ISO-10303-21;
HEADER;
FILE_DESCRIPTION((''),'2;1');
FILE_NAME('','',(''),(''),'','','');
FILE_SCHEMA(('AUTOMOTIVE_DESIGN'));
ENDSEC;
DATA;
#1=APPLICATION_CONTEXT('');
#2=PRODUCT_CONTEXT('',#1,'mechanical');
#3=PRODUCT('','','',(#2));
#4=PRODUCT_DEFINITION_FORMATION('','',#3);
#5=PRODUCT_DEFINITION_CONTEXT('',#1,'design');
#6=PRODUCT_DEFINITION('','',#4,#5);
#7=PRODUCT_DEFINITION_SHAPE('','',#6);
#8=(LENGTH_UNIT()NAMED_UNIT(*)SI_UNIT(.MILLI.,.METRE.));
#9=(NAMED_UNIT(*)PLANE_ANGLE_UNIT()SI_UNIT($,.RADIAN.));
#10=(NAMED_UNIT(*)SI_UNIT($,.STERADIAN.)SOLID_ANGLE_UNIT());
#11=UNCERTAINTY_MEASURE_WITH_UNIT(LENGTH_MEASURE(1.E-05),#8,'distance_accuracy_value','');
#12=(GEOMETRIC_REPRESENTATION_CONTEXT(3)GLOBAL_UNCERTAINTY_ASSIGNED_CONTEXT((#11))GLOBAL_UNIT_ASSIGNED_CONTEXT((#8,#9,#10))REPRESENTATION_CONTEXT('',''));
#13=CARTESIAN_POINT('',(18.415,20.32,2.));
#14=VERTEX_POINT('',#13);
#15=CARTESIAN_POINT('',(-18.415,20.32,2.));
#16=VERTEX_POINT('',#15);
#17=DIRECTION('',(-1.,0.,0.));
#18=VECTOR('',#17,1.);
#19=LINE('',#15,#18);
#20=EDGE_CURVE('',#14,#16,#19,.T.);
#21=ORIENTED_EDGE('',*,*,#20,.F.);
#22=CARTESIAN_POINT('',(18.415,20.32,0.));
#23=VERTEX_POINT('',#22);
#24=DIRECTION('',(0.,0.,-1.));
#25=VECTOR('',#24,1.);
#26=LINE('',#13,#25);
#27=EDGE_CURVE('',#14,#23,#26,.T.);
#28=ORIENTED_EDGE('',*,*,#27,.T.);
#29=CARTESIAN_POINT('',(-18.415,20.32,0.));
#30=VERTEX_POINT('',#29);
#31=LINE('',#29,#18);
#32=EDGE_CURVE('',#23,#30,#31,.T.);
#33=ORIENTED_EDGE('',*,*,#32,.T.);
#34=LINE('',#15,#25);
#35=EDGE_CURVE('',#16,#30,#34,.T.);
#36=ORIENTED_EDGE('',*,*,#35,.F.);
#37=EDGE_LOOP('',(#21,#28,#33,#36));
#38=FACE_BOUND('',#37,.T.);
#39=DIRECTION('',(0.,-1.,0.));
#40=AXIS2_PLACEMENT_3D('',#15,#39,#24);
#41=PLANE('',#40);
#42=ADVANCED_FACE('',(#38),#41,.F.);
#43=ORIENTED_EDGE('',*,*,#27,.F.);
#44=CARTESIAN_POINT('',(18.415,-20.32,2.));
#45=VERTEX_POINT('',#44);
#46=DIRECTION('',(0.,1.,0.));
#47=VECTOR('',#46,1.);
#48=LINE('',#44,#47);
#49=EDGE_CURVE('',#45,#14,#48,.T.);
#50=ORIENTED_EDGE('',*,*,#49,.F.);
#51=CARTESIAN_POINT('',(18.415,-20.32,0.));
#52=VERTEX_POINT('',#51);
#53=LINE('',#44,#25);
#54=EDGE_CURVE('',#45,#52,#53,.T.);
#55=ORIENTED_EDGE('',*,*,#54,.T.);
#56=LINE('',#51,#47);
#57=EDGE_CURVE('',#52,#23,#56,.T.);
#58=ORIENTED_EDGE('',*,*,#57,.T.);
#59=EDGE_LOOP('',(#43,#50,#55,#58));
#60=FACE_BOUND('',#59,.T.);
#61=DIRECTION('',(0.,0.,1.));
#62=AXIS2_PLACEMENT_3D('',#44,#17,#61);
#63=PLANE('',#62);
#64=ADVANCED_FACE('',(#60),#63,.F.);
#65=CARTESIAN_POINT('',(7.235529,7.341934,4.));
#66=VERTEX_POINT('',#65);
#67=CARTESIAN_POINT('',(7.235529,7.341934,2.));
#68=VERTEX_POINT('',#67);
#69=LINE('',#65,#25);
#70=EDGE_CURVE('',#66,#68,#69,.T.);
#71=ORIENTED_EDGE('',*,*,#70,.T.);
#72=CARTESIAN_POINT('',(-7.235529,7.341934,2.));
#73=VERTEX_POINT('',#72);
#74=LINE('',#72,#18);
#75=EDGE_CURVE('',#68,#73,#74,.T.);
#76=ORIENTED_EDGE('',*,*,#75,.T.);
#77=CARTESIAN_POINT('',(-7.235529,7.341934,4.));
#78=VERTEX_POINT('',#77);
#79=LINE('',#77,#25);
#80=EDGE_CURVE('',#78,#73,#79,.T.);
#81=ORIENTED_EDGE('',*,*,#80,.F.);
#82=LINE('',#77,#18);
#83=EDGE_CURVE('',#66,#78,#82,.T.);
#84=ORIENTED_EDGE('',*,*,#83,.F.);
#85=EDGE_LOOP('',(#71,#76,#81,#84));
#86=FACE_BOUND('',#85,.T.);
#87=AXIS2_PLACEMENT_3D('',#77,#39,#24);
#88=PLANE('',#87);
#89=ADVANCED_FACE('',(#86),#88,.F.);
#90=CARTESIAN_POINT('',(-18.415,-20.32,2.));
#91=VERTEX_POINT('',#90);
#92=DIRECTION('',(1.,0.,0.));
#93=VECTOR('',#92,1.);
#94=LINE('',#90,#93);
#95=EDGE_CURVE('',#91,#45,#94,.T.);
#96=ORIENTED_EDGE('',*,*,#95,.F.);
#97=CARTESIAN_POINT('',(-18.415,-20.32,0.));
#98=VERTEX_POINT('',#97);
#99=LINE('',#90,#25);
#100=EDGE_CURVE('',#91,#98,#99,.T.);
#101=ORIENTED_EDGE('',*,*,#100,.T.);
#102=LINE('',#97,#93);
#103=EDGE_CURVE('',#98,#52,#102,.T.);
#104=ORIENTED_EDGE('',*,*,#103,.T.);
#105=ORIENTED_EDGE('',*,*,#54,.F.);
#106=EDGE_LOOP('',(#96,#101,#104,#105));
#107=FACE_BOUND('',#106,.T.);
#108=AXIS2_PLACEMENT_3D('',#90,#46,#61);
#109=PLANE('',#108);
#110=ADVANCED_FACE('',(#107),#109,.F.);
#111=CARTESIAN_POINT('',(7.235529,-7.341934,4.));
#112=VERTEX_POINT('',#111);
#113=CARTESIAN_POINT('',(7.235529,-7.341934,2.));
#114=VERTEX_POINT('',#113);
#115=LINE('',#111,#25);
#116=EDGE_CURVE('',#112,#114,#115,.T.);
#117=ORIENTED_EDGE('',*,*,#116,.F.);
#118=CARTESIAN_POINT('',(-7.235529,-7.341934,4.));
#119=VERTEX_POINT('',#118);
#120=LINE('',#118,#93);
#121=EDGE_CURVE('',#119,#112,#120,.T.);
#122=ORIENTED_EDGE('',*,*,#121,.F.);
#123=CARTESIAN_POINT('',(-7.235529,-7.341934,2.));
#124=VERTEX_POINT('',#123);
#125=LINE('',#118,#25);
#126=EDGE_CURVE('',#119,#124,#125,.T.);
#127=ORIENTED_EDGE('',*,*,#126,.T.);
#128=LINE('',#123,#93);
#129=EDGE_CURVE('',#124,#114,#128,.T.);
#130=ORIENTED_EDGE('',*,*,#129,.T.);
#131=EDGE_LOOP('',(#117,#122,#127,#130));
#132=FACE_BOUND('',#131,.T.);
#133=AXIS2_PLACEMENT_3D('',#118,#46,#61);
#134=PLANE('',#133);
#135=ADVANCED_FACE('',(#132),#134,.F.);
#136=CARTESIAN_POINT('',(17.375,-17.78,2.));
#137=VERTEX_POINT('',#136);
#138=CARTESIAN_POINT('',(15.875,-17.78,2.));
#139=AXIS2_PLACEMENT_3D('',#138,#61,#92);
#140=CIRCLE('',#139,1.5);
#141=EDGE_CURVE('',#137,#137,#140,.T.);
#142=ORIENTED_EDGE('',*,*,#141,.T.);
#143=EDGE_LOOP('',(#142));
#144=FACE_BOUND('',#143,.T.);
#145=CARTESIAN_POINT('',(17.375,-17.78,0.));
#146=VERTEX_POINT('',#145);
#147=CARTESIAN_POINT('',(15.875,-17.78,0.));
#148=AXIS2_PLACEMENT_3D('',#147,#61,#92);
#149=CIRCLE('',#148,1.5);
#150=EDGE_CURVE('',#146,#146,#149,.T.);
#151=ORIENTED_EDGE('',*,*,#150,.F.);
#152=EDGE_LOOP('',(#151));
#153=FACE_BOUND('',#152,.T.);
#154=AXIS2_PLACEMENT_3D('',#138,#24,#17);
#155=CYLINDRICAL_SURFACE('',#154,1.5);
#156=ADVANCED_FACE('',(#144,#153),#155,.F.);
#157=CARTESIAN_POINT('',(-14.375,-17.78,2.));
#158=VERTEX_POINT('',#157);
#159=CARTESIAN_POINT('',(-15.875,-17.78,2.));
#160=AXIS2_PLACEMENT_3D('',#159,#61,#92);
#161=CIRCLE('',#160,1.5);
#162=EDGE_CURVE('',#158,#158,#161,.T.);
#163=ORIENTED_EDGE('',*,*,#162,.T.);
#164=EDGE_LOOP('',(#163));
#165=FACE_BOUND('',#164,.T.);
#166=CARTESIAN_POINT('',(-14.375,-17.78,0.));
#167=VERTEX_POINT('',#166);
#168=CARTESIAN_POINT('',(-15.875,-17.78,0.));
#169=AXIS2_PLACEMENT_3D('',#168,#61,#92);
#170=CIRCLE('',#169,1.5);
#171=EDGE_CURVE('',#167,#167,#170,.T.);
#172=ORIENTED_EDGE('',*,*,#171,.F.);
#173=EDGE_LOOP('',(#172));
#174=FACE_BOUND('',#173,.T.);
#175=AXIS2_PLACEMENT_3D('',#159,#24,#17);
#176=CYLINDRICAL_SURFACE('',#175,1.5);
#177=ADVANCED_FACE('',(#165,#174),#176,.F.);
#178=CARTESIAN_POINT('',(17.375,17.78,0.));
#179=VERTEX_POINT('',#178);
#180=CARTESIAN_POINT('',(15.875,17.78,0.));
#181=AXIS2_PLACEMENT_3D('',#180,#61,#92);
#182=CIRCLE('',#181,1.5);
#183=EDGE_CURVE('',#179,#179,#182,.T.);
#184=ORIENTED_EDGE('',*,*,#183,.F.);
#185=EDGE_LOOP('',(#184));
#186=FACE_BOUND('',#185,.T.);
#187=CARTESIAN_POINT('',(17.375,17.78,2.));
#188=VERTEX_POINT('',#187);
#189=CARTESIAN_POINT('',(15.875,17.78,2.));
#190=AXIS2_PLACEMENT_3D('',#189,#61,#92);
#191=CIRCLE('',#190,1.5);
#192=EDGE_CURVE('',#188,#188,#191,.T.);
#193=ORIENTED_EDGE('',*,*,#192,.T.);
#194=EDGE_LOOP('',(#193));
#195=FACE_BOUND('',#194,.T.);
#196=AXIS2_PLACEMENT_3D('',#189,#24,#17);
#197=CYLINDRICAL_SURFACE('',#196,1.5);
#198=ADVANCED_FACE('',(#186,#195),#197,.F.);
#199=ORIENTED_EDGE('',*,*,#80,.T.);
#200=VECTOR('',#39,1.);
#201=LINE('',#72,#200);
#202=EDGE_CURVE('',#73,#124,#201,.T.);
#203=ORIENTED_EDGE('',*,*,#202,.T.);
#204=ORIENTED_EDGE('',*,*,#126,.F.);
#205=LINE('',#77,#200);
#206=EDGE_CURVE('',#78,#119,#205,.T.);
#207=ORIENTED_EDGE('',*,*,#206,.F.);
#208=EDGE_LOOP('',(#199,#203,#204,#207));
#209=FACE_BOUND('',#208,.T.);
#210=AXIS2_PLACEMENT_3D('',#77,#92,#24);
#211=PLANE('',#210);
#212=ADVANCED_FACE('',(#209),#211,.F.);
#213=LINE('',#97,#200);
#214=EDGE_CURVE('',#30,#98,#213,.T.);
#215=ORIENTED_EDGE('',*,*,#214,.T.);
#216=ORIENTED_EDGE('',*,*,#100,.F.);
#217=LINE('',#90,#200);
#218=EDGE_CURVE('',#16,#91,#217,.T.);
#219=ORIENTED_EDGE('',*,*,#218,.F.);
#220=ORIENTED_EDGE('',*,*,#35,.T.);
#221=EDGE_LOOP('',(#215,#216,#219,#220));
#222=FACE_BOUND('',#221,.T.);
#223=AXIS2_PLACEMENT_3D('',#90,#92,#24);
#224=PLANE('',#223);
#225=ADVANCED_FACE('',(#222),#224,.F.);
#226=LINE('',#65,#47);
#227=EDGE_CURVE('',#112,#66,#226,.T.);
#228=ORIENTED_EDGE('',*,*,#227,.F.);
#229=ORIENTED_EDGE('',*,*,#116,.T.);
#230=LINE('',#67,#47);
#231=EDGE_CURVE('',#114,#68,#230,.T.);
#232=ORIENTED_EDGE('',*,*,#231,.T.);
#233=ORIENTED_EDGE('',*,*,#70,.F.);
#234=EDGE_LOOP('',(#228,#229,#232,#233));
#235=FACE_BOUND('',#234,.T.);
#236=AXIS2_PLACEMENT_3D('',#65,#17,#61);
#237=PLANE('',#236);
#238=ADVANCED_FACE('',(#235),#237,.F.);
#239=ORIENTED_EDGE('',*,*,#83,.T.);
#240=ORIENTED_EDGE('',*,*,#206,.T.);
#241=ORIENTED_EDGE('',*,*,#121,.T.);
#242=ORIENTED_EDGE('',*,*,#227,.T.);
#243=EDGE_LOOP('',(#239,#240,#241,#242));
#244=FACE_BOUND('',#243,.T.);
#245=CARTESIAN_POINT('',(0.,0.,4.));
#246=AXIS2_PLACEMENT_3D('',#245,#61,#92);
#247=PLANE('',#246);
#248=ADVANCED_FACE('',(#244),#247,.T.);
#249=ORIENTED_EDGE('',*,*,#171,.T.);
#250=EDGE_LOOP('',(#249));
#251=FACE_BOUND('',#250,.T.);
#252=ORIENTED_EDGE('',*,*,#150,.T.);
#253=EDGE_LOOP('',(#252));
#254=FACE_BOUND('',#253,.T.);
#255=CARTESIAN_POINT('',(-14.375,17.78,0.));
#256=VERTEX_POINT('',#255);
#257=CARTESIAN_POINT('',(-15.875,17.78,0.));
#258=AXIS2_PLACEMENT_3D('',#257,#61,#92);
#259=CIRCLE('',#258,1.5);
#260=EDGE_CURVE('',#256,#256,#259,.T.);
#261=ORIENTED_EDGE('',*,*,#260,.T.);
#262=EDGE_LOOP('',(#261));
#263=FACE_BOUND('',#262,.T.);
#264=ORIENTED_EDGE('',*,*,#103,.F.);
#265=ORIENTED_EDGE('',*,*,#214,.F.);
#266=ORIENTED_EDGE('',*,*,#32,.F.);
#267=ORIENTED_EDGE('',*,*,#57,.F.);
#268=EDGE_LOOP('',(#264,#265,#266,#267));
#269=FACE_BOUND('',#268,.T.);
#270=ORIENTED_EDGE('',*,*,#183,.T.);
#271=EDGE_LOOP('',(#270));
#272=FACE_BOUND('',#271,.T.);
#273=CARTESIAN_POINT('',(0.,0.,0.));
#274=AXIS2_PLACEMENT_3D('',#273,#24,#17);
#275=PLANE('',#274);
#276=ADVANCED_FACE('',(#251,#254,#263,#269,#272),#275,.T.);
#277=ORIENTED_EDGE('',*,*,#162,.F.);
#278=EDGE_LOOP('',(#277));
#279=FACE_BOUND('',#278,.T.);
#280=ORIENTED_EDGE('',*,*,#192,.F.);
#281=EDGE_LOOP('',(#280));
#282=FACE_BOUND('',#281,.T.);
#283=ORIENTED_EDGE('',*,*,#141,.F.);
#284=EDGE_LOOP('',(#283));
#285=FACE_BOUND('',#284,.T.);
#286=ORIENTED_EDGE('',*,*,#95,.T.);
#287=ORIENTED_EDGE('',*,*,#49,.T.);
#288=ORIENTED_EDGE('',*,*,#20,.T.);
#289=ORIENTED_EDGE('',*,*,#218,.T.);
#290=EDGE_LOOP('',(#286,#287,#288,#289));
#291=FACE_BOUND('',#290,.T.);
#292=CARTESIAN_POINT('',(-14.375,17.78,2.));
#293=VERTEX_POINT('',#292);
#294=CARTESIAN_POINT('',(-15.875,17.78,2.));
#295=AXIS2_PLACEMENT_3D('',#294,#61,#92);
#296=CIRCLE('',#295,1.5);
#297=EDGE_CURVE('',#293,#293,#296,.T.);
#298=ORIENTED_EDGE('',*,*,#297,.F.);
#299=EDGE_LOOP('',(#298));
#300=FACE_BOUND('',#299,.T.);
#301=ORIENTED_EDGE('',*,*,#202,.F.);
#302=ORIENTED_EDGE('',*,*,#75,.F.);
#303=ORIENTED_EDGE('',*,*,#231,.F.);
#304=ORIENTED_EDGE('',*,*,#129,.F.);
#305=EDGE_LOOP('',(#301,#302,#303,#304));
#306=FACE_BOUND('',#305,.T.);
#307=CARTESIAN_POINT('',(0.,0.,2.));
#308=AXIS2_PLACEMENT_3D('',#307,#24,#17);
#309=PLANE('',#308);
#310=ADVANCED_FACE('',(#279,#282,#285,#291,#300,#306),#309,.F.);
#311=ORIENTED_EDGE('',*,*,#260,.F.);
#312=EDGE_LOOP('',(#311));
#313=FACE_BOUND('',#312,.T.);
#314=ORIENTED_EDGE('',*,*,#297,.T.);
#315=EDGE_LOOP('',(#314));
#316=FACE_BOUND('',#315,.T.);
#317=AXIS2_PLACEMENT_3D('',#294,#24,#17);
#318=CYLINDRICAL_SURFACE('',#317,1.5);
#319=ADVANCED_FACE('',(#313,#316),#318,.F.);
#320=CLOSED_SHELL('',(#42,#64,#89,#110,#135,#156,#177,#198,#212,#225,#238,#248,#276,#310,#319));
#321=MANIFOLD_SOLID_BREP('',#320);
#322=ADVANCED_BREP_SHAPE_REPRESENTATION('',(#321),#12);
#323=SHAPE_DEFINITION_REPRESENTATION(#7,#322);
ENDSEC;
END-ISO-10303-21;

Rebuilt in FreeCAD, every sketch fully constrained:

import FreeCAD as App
import Part
import Sketcher
from FreeCAD import Vector
Q = App.Units.Quantity

doc = App.newDocument("Part")
params = doc.addObject("Spreadsheet::Sheet", "Params")
for row, (alias, value) in enumerate([
    ("sketch1_diameter", "3 mm"),
    ("sketch1_width", "36.83 mm"),
    ("sketch1_height", "40.64 mm"),
    ("pad1_length", "2 mm"),
    ("pad2_length", "2 mm"),
], start=1):
    params.set(f"A{row}", alias)
    params.set(f"B{row}", "=" + value)
    params.setAlias(f"B{row}", alias)

body = doc.addObject("PartDesign::Body", "Body")

sketch1 = body.newObject("Sketcher::SketchObject", "Sketch")
sketch1.AttachmentSupport = (doc.getObject("XY_Plane"), [""])
sketch1.MapMode = "FlatFace"
sketch1.addGeometry(Part.LineSegment(Vector(-18.4, 20.3, 0), Vector(-18.4, -20.3, 0)), False)
sketch1.addGeometry(Part.LineSegment(Vector(-18.4, -20.3, 0), Vector(18.4, -20.3, 0)), False)
sketch1.addGeometry(Part.LineSegment(Vector(18.4, -20.3, 0), Vector(18.4, 20.3, 0)), False)
sketch1.addGeometry(Part.LineSegment(Vector(18.4, 20.3, 0), Vector(-18.4, 20.3, 0)), False)
sketch1.addGeometry(Part.Circle(Vector(-15.9, -17.8, 0), Vector(0, 0, 1), 1.5), False)
sketch1.addGeometry(Part.Circle(Vector(15.9, -17.8, 0), Vector(0, 0, 1), 1.5), False)
sketch1.addGeometry(Part.Circle(Vector(-15.9, 17.8, 0), Vector(0, 0, 1), 1.5), False)
sketch1.addGeometry(Part.Circle(Vector(15.9, 17.8, 0), Vector(0, 0, 1), 1.5), False)
sketch1.addConstraint(Sketcher.Constraint("Coincident", 0, 2, 1, 1))
sketch1.addConstraint(Sketcher.Constraint("Coincident", 1, 2, 2, 1))
sketch1.addConstraint(Sketcher.Constraint("Coincident", 2, 2, 3, 1))
sketch1.addConstraint(Sketcher.Constraint("Coincident", 3, 2, 0, 1))
sketch1.addConstraint(Sketcher.Constraint("Vertical", 0))
sketch1.addConstraint(Sketcher.Constraint("Horizontal", 1))
sketch1.addConstraint(Sketcher.Constraint("Vertical", 2))
sketch1.addConstraint(Sketcher.Constraint("Horizontal", 3))
sketch1.addConstraint(Sketcher.Constraint("Equal", 4, 5))
sketch1.addConstraint(Sketcher.Constraint("Equal", 5, 6))
sketch1.addConstraint(Sketcher.Constraint("Equal", 6, 7))
sketch1.addConstraint(Sketcher.Constraint("Symmetric", 5, 3, 6, 3, -1, 1))
sketch1.addConstraint(Sketcher.Constraint("Symmetric", 4, 3, 7, 3, -1, 1))
sketch1.addConstraint(Sketcher.Constraint("Symmetric", 0, 2, 2, 2, -1, 1))
sketch1.addConstraint(Sketcher.Constraint("Symmetric", 4, 3, 5, 3, -2))
sketch1.addConstraint(Sketcher.Constraint("Diameter", 4, Q("3 mm")))
sketch1.addConstraint(Sketcher.Constraint("DistanceX", 1, 1, 1, 2, Q("36.83 mm")))
sketch1.addConstraint(Sketcher.Constraint("DistanceY", 0, 2, 0, 1, Q("40.64 mm")))
sketch1.addConstraint(Sketcher.Constraint("DistanceY", 0, 2, 6, 3, Q("38.1 mm")))
sketch1.addConstraint(Sketcher.Constraint("DistanceX", 4, 3, 5, 3, Q("31.75 mm")))
sketch1.setExpression("Constraints[15]", "Params.sketch1_diameter")
sketch1.setExpression("Constraints[16]", "Params.sketch1_width")
sketch1.setExpression("Constraints[17]", "Params.sketch1_height")
pad1 = body.newObject("PartDesign::Pad", "Pad")
pad1.Profile = sketch1
pad1.setExpression("Length", "Params.pad1_length")

sketch2 = body.newObject("Sketcher::SketchObject", "Sketch001")
sketch2.AttachmentSupport = (doc.getObject("XY_Plane"), [""])
sketch2.MapMode = "FlatFace"
sketch2.AttachmentOffset = App.Placement(Vector(0, 0, 2), App.Rotation())
sketch2.addGeometry(Part.LineSegment(Vector(-7, 7, 0), Vector(-7, -7, 0)), False)
sketch2.addGeometry(Part.LineSegment(Vector(-7, -7, 0), Vector(7, -7, 0)), False)
sketch2.addGeometry(Part.LineSegment(Vector(7, -7, 0), Vector(7, 7, 0)), False)
sketch2.addGeometry(Part.LineSegment(Vector(7, 7, 0), Vector(-7, 7, 0)), False)
sketch2.addConstraint(Sketcher.Constraint("Coincident", 0, 2, 1, 1))
sketch2.addConstraint(Sketcher.Constraint("Coincident", 1, 2, 2, 1))
sketch2.addConstraint(Sketcher.Constraint("Coincident", 2, 2, 3, 1))
sketch2.addConstraint(Sketcher.Constraint("Coincident", 3, 2, 0, 1))
sketch2.addConstraint(Sketcher.Constraint("Vertical", 0))
sketch2.addConstraint(Sketcher.Constraint("Horizontal", 1))
sketch2.addConstraint(Sketcher.Constraint("Vertical", 2))
sketch2.addConstraint(Sketcher.Constraint("Horizontal", 3))
sketch2.addConstraint(Sketcher.Constraint("Symmetric", 0, 2, 2, 2, -1, 1))
sketch2.addConstraint(Sketcher.Constraint("DistanceX", 1, 1, 1, 2, Q("14.471059 mm")))
sketch2.addConstraint(Sketcher.Constraint("DistanceY", 0, 2, 0, 1, Q("14.683868 mm")))
pad2 = body.newObject("PartDesign::Pad", "Pad001")
pad2.Profile = sketch2
pad2.setExpression("Length", "Params.pad2_length")

doc.recompute()
